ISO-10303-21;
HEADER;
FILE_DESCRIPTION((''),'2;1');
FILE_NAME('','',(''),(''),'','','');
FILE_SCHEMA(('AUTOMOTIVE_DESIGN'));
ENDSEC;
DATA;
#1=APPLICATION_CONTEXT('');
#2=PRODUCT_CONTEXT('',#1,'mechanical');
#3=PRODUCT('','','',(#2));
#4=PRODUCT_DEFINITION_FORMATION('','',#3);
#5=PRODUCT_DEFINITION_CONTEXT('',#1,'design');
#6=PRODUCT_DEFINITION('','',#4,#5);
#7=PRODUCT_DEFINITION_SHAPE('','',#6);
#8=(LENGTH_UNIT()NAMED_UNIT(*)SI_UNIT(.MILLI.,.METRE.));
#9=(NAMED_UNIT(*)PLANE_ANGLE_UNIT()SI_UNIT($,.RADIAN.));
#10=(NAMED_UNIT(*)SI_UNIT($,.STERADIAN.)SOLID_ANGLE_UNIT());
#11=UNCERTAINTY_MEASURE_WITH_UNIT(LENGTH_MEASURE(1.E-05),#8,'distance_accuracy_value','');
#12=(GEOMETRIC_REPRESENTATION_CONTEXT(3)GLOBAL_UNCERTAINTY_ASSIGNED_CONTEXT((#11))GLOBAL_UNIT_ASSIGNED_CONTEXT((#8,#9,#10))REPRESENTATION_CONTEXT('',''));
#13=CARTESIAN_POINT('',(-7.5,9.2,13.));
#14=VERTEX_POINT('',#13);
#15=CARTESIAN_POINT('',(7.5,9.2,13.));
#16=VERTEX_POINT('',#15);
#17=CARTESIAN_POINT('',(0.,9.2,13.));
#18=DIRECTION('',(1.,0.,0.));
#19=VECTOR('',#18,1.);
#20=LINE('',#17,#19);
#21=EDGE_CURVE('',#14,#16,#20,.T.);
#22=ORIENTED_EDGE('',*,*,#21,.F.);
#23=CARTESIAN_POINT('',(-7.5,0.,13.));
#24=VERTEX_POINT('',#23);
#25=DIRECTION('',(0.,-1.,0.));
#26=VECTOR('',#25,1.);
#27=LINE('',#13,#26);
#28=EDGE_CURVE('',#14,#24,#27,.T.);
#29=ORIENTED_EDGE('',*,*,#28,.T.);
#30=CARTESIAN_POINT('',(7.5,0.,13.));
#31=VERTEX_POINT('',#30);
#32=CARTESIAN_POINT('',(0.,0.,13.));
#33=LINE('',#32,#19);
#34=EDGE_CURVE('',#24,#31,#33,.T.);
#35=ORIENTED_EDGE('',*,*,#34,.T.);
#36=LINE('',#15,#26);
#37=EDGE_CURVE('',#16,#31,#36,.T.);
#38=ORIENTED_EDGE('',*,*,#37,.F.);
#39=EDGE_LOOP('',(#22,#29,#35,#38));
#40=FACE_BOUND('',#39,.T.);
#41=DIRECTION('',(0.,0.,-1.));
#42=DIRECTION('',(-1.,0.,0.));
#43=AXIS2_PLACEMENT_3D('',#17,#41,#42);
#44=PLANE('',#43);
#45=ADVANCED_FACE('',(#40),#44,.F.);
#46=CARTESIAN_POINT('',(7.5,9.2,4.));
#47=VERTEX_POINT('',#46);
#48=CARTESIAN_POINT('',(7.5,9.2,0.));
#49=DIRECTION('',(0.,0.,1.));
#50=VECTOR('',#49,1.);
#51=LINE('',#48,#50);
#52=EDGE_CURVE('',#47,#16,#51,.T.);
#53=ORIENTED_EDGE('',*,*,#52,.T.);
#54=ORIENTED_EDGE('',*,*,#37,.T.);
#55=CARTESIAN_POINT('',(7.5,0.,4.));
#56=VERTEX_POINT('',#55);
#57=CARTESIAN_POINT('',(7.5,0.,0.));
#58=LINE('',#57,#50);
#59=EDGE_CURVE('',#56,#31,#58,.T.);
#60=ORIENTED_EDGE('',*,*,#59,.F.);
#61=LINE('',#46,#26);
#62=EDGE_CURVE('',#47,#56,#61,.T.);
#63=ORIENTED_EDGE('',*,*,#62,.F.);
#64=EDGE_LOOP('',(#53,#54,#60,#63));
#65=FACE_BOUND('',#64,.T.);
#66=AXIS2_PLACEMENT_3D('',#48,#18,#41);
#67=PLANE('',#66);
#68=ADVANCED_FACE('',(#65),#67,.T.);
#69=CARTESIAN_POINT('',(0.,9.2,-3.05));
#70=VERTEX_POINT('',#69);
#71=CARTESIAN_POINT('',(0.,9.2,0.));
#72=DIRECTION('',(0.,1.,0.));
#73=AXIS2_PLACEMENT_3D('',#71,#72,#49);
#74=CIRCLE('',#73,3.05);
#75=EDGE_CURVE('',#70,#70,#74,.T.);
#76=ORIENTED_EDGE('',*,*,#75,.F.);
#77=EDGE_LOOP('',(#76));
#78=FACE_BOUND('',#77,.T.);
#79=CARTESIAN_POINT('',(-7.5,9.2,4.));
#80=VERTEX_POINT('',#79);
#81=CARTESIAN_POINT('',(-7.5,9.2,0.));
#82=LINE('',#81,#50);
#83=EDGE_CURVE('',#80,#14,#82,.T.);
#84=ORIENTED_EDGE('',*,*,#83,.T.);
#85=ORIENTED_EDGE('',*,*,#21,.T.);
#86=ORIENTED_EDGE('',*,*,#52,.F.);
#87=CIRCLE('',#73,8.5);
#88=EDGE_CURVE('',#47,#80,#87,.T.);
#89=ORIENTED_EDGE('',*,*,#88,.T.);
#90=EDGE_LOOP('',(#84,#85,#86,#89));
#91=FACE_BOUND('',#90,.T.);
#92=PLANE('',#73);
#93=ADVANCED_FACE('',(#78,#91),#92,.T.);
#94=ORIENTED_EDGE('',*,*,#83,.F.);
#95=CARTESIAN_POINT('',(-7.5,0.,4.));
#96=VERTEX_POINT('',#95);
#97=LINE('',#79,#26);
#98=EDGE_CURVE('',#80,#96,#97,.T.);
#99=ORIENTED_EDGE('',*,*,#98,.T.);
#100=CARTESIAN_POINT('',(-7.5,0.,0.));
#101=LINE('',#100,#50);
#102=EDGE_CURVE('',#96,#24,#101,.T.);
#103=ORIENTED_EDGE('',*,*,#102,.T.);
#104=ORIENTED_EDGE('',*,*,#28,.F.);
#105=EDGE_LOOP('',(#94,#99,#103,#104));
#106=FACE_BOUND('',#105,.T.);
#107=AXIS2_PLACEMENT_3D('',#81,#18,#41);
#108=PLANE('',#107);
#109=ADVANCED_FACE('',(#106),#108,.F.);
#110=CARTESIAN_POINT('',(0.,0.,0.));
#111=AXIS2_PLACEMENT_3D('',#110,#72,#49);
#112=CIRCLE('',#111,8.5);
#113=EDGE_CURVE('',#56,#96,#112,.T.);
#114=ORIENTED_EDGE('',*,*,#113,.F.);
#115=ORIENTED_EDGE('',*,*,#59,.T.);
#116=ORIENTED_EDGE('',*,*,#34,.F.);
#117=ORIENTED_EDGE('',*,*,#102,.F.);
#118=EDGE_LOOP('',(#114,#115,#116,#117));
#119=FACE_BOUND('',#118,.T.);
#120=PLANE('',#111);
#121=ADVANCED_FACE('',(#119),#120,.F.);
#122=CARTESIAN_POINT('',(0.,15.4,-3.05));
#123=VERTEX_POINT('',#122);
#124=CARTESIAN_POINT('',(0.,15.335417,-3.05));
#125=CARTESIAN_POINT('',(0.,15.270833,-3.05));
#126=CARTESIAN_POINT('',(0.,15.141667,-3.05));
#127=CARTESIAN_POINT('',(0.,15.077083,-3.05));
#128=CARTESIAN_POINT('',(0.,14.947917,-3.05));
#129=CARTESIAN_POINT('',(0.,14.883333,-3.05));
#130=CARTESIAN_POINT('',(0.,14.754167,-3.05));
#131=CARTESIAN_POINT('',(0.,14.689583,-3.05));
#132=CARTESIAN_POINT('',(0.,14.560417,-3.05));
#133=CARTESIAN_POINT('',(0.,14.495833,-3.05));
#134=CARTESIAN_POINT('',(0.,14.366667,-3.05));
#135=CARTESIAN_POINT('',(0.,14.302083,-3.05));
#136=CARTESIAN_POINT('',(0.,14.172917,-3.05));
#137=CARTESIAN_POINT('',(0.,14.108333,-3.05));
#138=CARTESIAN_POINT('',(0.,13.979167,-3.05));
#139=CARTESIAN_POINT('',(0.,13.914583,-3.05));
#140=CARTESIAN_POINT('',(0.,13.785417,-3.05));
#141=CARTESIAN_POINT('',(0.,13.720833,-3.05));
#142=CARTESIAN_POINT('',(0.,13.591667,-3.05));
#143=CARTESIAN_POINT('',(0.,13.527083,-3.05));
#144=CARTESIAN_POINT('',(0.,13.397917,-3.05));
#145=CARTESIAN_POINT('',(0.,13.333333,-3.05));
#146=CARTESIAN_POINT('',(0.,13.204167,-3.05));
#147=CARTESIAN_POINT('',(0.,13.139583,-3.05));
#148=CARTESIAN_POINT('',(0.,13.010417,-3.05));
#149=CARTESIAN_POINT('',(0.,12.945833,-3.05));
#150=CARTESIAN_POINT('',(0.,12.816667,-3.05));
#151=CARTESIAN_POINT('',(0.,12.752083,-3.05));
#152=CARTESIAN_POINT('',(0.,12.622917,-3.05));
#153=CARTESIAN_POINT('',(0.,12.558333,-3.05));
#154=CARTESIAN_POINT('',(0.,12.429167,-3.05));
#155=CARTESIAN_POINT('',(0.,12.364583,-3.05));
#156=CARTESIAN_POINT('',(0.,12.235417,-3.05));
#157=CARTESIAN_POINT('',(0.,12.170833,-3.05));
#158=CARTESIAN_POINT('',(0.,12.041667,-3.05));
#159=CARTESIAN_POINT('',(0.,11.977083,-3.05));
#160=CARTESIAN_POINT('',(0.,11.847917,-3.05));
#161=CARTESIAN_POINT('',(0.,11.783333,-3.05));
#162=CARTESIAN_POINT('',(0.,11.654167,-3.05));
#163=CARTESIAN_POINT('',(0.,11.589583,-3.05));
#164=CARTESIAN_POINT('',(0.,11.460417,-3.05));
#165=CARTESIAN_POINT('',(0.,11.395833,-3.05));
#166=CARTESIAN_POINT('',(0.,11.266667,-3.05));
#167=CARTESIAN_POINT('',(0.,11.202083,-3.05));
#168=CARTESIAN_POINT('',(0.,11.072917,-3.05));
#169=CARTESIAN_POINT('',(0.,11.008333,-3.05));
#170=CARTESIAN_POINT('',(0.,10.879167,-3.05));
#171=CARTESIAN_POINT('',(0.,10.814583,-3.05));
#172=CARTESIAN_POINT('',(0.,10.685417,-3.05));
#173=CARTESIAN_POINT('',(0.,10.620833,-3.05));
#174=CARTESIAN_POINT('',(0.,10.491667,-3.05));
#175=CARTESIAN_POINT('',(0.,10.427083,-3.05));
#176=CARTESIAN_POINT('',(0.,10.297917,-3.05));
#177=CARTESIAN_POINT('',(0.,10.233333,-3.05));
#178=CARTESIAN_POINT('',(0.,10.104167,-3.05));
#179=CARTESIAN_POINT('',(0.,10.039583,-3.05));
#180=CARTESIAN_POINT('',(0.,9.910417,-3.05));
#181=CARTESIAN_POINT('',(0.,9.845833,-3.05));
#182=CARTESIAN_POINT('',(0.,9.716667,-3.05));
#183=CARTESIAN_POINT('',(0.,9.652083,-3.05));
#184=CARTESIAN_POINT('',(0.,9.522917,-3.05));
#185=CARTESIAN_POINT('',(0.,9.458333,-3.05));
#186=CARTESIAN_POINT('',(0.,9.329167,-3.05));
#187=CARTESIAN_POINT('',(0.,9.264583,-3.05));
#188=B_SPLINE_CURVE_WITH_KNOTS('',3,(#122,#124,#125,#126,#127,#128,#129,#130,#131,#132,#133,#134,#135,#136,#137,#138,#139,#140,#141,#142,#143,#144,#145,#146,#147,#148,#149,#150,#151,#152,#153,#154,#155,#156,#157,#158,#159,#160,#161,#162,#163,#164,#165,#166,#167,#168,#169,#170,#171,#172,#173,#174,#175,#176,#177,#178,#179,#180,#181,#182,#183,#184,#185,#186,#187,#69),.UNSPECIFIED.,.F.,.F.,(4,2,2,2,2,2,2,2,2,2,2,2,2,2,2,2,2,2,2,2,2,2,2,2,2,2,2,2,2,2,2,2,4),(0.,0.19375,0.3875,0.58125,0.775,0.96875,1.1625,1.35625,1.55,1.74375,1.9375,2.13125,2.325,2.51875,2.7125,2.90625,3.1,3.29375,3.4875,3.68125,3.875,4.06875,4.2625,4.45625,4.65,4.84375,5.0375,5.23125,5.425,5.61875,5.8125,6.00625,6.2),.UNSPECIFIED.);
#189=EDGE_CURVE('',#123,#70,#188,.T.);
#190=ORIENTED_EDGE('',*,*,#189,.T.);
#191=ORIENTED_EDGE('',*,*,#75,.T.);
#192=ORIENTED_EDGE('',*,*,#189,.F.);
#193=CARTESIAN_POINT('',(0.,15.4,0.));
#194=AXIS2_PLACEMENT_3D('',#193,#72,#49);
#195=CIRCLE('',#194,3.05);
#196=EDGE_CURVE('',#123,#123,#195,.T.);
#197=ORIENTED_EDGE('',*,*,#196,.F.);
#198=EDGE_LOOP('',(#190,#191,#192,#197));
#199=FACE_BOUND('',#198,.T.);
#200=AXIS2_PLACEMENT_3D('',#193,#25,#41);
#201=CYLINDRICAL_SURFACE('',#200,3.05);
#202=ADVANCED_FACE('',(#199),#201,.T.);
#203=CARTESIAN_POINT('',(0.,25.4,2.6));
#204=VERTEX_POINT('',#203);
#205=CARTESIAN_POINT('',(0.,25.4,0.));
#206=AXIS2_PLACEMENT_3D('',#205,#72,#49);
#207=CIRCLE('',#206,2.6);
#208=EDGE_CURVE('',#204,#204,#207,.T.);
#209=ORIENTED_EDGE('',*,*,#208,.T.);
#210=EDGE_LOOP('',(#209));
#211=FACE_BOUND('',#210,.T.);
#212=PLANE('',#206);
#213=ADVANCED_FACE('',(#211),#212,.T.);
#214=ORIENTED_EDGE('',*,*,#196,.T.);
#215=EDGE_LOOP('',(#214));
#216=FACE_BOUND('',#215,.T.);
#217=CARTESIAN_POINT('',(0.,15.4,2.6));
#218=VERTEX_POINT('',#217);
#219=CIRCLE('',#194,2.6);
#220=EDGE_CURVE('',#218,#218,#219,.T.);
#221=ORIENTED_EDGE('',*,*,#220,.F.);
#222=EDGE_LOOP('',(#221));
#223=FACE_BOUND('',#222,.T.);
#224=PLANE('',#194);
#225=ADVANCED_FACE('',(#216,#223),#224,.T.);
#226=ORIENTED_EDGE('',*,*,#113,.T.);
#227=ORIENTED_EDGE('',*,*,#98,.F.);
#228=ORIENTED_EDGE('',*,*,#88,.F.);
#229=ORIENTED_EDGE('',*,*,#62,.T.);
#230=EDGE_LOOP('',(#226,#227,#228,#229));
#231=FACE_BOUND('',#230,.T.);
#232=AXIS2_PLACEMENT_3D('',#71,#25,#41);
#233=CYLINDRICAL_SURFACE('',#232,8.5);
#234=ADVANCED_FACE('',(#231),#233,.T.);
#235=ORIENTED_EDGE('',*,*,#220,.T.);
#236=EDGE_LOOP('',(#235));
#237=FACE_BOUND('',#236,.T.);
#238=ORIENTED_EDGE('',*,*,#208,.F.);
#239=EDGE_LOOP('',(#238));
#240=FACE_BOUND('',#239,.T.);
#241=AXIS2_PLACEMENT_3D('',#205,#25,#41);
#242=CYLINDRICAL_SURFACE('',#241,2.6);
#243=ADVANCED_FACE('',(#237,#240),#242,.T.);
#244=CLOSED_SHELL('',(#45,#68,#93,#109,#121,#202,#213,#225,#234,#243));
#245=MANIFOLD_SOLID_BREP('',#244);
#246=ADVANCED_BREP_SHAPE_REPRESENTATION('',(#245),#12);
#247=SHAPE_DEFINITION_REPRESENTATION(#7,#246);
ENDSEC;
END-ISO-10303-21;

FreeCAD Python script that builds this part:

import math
import FreeCAD as App
import Part
import Sketcher
from FreeCAD import Vector
Q = App.Units.Quantity

doc = App.newDocument("Part")
body = doc.addObject("PartDesign::Body", "Body")

# Sketch on XZ plane
sketch1 = body.newObject("Sketcher::SketchObject", "Sketch")
sketch1.AttachmentSupport = (doc.getObject("XZ_Plane"), [""])
sketch1.MapMode = "FlatFace"
sketch1.addGeometry([
    Part.ArcOfCircle(Part.Circle(Vector(0, 0, 0), Vector(0, 0, 1), 8.5), math.radians(152), math.radians(360)),  # 0
    Part.LineSegment(Vector(-7.5, 4, 0), Vector(-7.5, 13, 0)),  # 1
    Part.LineSegment(Vector(-7.5, 13, 0), Vector(7.5, 13, 0)),  # 2
    Part.LineSegment(Vector(7.5, 13, 0), Vector(7.5, 4, 0)),  # 3
    Part.ArcOfCircle(Part.Circle(Vector(0, 0, 0), Vector(0, 0, 1), 8.5), math.radians(0), math.radians(28)),  # 4
], False)
sketch1.addConstraint([
    Sketcher.Constraint("Coincident", 0, 1, 1, 1),
    Sketcher.Constraint("Coincident", 1, 2, 2, 1),
    Sketcher.Constraint("Coincident", 2, 2, 3, 1),
    Sketcher.Constraint("Coincident", 3, 2, 4, 2),
    Sketcher.Constraint("Tangent", 4, 1, 0, 2),
    Sketcher.Constraint("Vertical", 1),
    Sketcher.Constraint("Horizontal", 2),
    Sketcher.Constraint("Vertical", 3),
    Sketcher.Constraint("Coincident", 0, 3, -1, 1),
    Sketcher.Constraint("Equal", 0, 4),
    Sketcher.Constraint("PointOnObject", 4, 1, -1),
    Sketcher.Constraint("Horizontal", 0, 1, 3, 2),
    Sketcher.Constraint("Radius", 0, Q("8.5 mm")),
    Sketcher.Constraint("DistanceX", 2, 1, 2, 2, Q("15 mm")),
    Sketcher.Constraint("DistanceY", 1, 1, 1, 2, Q("9 mm")),
])
pad1 = body.newObject("PartDesign::Pad", "Pad")
pad1.Profile = sketch1
pad1.Length = 9.2
pad1.Reversed = True

# Sketch on XZ plane
sketch2 = body.newObject("Sketcher::SketchObject", "Sketch001")
sketch2.AttachmentSupport = (doc.getObject("XZ_Plane"), [""])
sketch2.MapMode = "FlatFace"
sketch2.AttachmentOffset = App.Placement(Vector(0, 0, -9.2), App.Rotation())
sketch2.addGeometry(Part.Circle(Vector(0, 0, 0), Vector(0, 0, 1), 3), False)
sketch2.addConstraint([
    Sketcher.Constraint("Coincident", 0, 3, -1, 1),
    Sketcher.Constraint("Diameter", 0, Q("6.1 mm")),
])
pad2 = body.newObject("PartDesign::Pad", "Pad001")
pad2.Profile = sketch2
pad2.Length = 6.2
pad2.Reversed = True

# Sketch on XZ plane
sketch3 = body.newObject("Sketcher::SketchObject", "Sketch002")
sketch3.AttachmentSupport = (doc.getObject("XZ_Plane"), [""])
sketch3.MapMode = "FlatFace"
sketch3.AttachmentOffset = App.Placement(Vector(0, 0, -15.4), App.Rotation())
sketch3.addGeometry(Part.Circle(Vector(0, 0, 0), Vector(0, 0, 1), 2.6), False)
sketch3.addConstraint([
    Sketcher.Constraint("Coincident", 0, 3, -1, 1),
    Sketcher.Constraint("Diameter", 0, Q("5.2 mm")),
])
pad3 = body.newObject("PartDesign::Pad", "Pad002")
pad3.Profile = sketch3
pad3.Length = 10
pad3.Reversed = True

doc.recompute()
